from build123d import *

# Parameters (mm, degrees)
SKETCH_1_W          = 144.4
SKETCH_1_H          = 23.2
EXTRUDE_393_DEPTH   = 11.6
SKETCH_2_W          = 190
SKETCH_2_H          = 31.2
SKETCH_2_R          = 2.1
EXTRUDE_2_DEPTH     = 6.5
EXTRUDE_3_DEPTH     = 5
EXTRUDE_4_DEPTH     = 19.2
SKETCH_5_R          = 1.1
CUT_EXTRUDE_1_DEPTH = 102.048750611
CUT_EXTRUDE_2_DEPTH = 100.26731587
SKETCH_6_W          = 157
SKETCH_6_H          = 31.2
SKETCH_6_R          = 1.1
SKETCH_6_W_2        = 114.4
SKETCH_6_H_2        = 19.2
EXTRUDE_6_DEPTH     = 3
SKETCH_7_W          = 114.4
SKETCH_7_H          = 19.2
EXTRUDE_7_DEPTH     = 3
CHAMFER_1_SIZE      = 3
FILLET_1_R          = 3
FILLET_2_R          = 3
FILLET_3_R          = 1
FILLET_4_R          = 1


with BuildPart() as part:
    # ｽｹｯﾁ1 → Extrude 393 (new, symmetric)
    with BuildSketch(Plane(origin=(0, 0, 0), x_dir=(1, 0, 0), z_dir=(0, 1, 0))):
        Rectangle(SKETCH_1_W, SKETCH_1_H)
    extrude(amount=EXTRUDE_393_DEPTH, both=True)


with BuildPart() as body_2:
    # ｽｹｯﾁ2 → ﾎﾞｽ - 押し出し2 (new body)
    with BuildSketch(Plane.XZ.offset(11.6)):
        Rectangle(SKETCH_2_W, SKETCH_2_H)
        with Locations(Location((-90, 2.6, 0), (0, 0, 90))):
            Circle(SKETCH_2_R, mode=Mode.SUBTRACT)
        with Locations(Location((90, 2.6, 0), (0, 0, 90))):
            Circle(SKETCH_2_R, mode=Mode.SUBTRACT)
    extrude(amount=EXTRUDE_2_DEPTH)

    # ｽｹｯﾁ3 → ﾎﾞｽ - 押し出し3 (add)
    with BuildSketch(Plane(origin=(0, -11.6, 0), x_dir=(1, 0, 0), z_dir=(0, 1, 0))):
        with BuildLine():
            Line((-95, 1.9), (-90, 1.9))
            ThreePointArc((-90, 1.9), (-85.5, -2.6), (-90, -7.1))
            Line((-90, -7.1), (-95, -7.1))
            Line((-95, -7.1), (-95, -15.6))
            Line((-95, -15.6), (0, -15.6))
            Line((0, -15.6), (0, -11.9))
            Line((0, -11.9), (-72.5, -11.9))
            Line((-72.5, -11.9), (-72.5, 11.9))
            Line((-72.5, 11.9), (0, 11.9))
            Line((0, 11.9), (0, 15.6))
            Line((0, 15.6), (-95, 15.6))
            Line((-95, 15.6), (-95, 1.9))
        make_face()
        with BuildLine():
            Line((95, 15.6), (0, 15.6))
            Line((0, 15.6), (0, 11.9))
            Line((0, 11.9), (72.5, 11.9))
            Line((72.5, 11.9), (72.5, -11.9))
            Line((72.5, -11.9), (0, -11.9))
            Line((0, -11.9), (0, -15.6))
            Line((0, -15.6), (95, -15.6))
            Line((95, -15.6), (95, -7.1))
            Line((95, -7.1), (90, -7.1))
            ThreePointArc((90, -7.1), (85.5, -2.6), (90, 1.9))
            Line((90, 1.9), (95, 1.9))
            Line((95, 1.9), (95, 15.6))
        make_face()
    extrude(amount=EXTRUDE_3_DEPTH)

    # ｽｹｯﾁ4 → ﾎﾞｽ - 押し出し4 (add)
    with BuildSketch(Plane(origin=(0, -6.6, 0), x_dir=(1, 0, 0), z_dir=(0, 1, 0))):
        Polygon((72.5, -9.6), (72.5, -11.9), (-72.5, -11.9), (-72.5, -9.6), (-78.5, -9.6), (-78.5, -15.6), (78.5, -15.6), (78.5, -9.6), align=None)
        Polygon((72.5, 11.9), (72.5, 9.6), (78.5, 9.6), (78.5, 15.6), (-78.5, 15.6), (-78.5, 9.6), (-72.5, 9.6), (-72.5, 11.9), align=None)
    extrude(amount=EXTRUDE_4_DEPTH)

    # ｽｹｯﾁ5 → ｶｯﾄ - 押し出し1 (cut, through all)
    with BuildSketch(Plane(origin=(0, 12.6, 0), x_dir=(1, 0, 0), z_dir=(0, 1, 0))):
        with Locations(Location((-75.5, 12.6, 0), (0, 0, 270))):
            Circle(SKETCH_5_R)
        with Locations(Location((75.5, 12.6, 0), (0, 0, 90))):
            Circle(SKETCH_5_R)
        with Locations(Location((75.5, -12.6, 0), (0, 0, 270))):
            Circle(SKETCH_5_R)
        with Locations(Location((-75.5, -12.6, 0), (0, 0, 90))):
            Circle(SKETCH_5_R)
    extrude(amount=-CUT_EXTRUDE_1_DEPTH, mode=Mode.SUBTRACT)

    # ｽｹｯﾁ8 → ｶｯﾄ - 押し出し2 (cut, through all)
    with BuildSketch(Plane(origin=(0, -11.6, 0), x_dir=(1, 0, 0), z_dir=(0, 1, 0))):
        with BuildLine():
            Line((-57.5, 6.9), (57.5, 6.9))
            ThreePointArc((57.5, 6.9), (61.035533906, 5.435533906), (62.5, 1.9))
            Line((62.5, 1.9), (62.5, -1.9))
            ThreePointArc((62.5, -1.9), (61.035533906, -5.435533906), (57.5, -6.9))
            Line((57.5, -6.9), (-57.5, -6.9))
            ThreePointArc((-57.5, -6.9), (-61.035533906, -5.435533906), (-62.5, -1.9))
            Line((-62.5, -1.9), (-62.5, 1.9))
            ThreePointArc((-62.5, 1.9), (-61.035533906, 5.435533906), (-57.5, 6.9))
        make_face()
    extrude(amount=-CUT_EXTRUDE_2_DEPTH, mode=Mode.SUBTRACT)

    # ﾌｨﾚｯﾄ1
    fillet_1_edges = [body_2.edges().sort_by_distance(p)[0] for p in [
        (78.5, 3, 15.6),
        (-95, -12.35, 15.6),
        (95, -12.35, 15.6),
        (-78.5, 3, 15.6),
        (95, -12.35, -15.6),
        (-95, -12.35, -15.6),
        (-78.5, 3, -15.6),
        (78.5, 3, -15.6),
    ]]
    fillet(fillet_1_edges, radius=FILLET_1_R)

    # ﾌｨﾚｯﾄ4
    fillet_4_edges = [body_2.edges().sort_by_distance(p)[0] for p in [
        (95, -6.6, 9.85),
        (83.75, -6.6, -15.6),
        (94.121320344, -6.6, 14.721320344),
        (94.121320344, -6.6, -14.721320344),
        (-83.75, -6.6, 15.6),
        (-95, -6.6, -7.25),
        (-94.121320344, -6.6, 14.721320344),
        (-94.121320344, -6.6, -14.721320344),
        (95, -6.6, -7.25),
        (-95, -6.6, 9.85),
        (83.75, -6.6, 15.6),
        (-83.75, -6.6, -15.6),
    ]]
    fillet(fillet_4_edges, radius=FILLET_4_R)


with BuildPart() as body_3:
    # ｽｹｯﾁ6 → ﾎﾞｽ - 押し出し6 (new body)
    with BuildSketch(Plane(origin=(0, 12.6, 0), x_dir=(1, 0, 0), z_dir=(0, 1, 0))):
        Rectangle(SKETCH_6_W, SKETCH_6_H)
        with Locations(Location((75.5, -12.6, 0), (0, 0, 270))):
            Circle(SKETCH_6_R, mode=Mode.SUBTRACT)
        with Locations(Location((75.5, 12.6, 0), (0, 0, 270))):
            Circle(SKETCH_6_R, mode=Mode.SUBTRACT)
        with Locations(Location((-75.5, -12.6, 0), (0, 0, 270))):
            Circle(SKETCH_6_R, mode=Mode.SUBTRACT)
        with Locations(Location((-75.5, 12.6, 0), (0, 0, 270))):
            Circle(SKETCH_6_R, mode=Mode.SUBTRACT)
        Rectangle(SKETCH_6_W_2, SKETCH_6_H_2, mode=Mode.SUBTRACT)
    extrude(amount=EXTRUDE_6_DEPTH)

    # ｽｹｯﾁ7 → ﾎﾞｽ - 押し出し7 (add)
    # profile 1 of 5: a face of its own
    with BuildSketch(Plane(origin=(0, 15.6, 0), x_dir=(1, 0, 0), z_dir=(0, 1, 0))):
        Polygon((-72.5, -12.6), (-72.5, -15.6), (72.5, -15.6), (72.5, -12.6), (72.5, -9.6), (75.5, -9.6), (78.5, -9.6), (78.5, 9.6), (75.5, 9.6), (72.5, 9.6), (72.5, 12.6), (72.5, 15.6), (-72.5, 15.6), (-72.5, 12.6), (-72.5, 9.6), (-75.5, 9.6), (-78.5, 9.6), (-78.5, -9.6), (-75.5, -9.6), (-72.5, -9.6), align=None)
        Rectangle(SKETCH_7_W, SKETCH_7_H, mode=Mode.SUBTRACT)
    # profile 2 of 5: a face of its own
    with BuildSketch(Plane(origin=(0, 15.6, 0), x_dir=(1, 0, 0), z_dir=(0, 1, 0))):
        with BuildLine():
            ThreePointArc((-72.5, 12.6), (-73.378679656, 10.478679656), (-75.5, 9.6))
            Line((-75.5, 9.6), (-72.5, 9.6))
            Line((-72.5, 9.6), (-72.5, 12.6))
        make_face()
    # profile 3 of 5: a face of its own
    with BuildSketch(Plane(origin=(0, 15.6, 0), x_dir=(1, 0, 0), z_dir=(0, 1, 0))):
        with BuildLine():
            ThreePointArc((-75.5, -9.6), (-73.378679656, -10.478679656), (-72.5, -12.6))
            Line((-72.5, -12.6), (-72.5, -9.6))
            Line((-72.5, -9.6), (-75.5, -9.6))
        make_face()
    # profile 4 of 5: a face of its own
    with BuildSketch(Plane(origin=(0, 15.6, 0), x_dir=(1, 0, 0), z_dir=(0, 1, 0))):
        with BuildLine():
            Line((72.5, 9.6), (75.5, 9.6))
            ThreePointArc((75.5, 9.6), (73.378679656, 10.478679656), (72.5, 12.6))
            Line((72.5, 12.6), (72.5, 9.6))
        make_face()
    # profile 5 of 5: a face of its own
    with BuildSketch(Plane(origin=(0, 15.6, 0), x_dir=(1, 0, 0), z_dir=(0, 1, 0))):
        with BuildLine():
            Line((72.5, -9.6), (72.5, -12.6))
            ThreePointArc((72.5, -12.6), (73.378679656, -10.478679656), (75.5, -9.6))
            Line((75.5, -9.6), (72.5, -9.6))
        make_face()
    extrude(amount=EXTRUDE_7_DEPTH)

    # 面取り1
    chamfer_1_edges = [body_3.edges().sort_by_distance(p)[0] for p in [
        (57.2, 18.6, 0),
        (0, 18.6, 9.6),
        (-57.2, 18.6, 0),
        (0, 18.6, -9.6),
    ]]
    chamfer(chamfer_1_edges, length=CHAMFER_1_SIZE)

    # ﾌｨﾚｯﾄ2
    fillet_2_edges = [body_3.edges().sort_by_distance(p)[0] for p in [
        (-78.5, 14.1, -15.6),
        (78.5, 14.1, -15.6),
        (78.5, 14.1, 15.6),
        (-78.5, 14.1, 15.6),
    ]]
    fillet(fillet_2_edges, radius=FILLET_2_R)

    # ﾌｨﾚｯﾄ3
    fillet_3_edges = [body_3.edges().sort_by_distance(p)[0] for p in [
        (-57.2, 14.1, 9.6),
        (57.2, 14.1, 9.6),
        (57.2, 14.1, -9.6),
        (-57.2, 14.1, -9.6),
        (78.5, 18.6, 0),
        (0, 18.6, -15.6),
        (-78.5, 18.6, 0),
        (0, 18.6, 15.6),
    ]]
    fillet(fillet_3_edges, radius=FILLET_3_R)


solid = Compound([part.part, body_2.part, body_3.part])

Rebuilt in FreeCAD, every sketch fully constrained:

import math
import FreeCAD as App
import Part
import Sketcher


def edges_at(feature, points):
    """Names of the edges that pass closest to the given points."""
    edges = feature.Shape.Edges
    near = lambda p: min(range(len(edges)), key=lambda i: edges[i].distToShape(Part.Vertex(*p))[0])
    return sorted({f"Edge{near(p) + 1}" for p in points})

doc = App.newDocument("Part")
body = doc.addObject("PartDesign::Body", "Body")

# Sketch on XZ plane
sketch1 = doc.addObject("Sketcher::SketchObject", "Sketch")
body.addObject(sketch1)
sketch1.AttachmentSupport = (doc.XZ_Plane, [""])
sketch1.MapMode = "FlatFace"
sketch1.addGeometry([
    Part.LineSegment(App.Vector(-72, -12, 0), App.Vector(-72, 12, 0)),
    Part.LineSegment(App.Vector(-72, 12, 0), App.Vector(72, 12, 0)),
    Part.LineSegment(App.Vector(72, 12, 0), App.Vector(72, -12, 0)),
    Part.LineSegment(App.Vector(72, -12, 0), App.Vector(-72, -12, 0)),
], False)
sketch1.addConstraint([
    Sketcher.Constraint("Coincident", 0, 2, 1, 1),
    Sketcher.Constraint("Coincident", 1, 2, 2, 1),
    Sketcher.Constraint("Coincident", 2, 2, 3, 1),
    Sketcher.Constraint("Coincident", 3, 2, 0, 1),
    Sketcher.Constraint("Vertical", 0),
    Sketcher.Constraint("Horizontal", 1),
    Sketcher.Constraint("Vertical", 2),
    Sketcher.Constraint("Horizontal", 3),
    Sketcher.Constraint("Symmetric", 0, 2, 2, 2, -1, 1),
    Sketcher.Constraint("DistanceX", 1, 1, 1, 2, 144.4),
    Sketcher.Constraint("DistanceY", 0, 1, 0, 2, 23.2),
])
pad1 = doc.addObject("PartDesign::Pad", "Pad")
body.addObject(pad1)
pad1.Profile = sketch1
pad1.Length = 23.2
pad1.Midplane = True
body2 = doc.addObject("PartDesign::Body", "Body001")

# Sketch on XZ plane
sketch2 = doc.addObject("Sketcher::SketchObject", "Sketch001")
body2.addObject(sketch2)
sketch2.AttachmentSupport = (doc.getObject("XZ_Plane001"), [""])
sketch2.MapMode = "FlatFace"
sketch2.AttachmentOffset = App.Placement(App.Vector(0, 0, 11.6), App.Rotation())
sketch2.addGeometry([
    Part.LineSegment(App.Vector(-95, 15.6, 0), App.Vector(-95, -15.6, 0)),  # 0
    Part.LineSegment(App.Vector(-95, -15.6, 0), App.Vector(95, -15.6, 0)),  # 1
    Part.LineSegment(App.Vector(95, -15.6, 0), App.Vector(95, 15.6, 0)),  # 2
    Part.LineSegment(App.Vector(95, 15.6, 0), App.Vector(-95, 15.6, 0)),  # 3
    Part.Circle(App.Vector(-90, 2.6, 0), App.Vector(0, 0, 1), 2.1),  # 4
    Part.Circle(App.Vector(90, 2.6, 0), App.Vector(0, 0, 1), 2.1),  # 5
], False)
sketch2.addConstraint([
    Sketcher.Constraint("Coincident", 0, 2, 1, 1),
    Sketcher.Constraint("Coincident", 1, 2, 2, 1),
    Sketcher.Constraint("Coincident", 2, 2, 3, 1),
    Sketcher.Constraint("Coincident", 3, 2, 0, 1),
    Sketcher.Constraint("Vertical", 0),
    Sketcher.Constraint("Horizontal", 1),
    Sketcher.Constraint("Vertical", 2),
    Sketcher.Constraint("Horizontal", 3),
    Sketcher.Constraint("Equal", 4, 5),
    Sketcher.Constraint("Symmetric", 0, 2, 2, 2, -1, 1),
    Sketcher.Constraint("Symmetric", 4, 3, 5, 3, -2),
    Sketcher.Constraint("Diameter", 4, 4.2),
    Sketcher.Constraint("DistanceX", 1, 1, 1, 2, 190.0),
    Sketcher.Constraint("DistanceY", 0, 2, 0, 1, 31.2),
    Sketcher.Constraint("DistanceX", 4, 3, -1, 1, 90.0),
    Sketcher.Constraint("DistanceY", 5, 3, 2, 2, 13.0),
])
pad2 = doc.addObject("PartDesign::Pad", "Pad001")
body2.addObject(pad2)
pad2.Profile = sketch2
pad2.Length = 6.5

# Sketch on XZ plane
sketch3 = doc.addObject("Sketcher::SketchObject", "Sketch002")
body2.addObject(sketch3)
sketch3.AttachmentSupport = (doc.getObject("XZ_Plane001"), [""])
sketch3.MapMode = "FlatFace"
sketch3.AttachmentOffset = App.Placement(App.Vector(0, 0, 11.6), App.Rotation())
sketch3.addGeometry([
    Part.LineSegment(App.Vector(-95, -1.9, 0), App.Vector(-90, -1.9, 0)),  # 0
    Part.ArcOfCircle(Part.Circle(App.Vector(-90, 2.6, 0), App.Vector(0, 0, 1), 4.5), math.radians(-90), math.radians(90)),  # 1
    Part.LineSegment(App.Vector(-90, 7.1, 0), App.Vector(-95, 7.1, 0)),  # 2
    Part.LineSegment(App.Vector(-95, 7.1, 0), App.Vector(-95, 15.6, 0)),  # 3
    Part.LineSegment(App.Vector(-95, 15.6, 0), App.Vector(95, 15.6, 0)),  # 4
    Part.LineSegment(App.Vector(95, 15.6, 0), App.Vector(95, 7.1, 0)),  # 5
    Part.LineSegment(App.Vector(95, 7.1, 0), App.Vector(90, 7.1, 0)),  # 6
    Part.ArcOfCircle(Part.Circle(App.Vector(90, 2.6, 0), App.Vector(0, 0, 1), 4.5), math.radians(90), math.radians(270)),  # 7
    Part.LineSegment(App.Vector(90, -1.9, 0), App.Vector(95, -1.9, 0)),  # 8
    Part.LineSegment(App.Vector(95, -1.9, 0), App.Vector(95, -15.6, 0)),  # 9
    Part.LineSegment(App.Vector(95, -15.6, 0), App.Vector(-95, -15.6, 0)),  # 10
    Part.LineSegment(App.Vector(-95, -15.6, 0), App.Vector(-95, -1.9, 0)),  # 11
    Part.LineSegment(App.Vector(-72.5, 11.9, 0), App.Vector(-72.5, -11.9, 0)),  # 12
    Part.LineSegment(App.Vector(-72.5, -11.9, 0), App.Vector(72.5, -11.9, 0)),  # 13
    Part.LineSegment(App.Vector(72.5, -11.9, 0), App.Vector(72.5, 11.9, 0)),  # 14
    Part.LineSegment(App.Vector(72.5, 11.9, 0), App.Vector(-72.5, 11.9, 0)),  # 15
], False)
sketch3.addConstraint([
    Sketcher.Constraint("Tangent", 0, 2, 1, 1),
    Sketcher.Constraint("Tangent", 1, 2, 2, 1),
    Sketcher.Constraint("Coincident", 2, 2, 3, 1),
    Sketcher.Constraint("Coincident", 3, 2, 4, 1),
    Sketcher.Constraint("Coincident", 4, 2, 5, 1),
    Sketcher.Constraint("Coincident", 5, 2, 6, 1),
    Sketcher.Constraint("Tangent", 6, 2, 7, 1),
    Sketcher.Constraint("Tangent", 7, 2, 8, 1),
    Sketcher.Constraint("Coincident", 8, 2, 9, 1),
    Sketcher.Constraint("Coincident", 9, 2, 10, 1),
    Sketcher.Constraint("Coincident", 10, 2, 11, 1),
    Sketcher.Constraint("Coincident", 11, 2, 0, 1),
    Sketcher.Constraint("Coincident", 12, 2, 13, 1),
    Sketcher.Constraint("Coincident", 13, 2, 14, 1),
    Sketcher.Constraint("Coincident", 14, 2, 15, 1),
    Sketcher.Constraint("Coincident", 15, 2, 12, 1),
    Sketcher.Constraint("Horizontal", 0),
    Sketcher.Constraint("Horizontal", 2),
    Sketcher.Constraint("Vertical", 3),
    Sketcher.Constraint("Horizontal", 4),
    Sketcher.Constraint("Vertical", 5),
    Sketcher.Constraint("Horizontal", 6),
    Sketcher.Constraint("Horizontal", 8),
    Sketcher.Constraint("Vertical", 9),
    Sketcher.Constraint("Horizontal", 10),
    Sketcher.Constraint("Vertical", 11),
    Sketcher.Constraint("Vertical", 12),
    Sketcher.Constraint("Horizontal", 13),
    Sketcher.Constraint("Vertical", 14),
    Sketcher.Constraint("Horizontal", 15),
    Sketcher.Constraint("Equal", 1, 7),
    Sketcher.Constraint("Symmetric", 3, 2, 9, 2, -1, 1),
    Sketcher.Constraint("Symmetric", 12, 2, 14, 2, -1, 1),
    Sketcher.Constraint("Symmetric", 1, 3, 7, 3, -2),
    Sketcher.Constraint("Vertical", 5, 2, 8, 2),
    Sketcher.Constraint("Vertical", 3, 2, 10, 2),
    Sketcher.Constraint("Radius", 1, 4.5),
    Sketcher.Constraint("DistanceX", 0, 1, 0, 2, 5.0),
    Sketcher.Constraint("DistanceX", 4, 1, 4, 2, 190.0),
    Sketcher.Constraint("DistanceX", 13, 1, 13, 2, 145.0),
    Sketcher.Constraint("DistanceY", 3, 1, 3, 2, 8.5),
    Sketcher.Constraint("DistanceY", 9, 2, 9, 1, 13.7),
    Sketcher.Constraint("DistanceY", 12, 2, 12, 1, 23.8),
])
pad3 = doc.addObject("PartDesign::Pad", "Pad002")
body2.addObject(pad3)
pad3.Profile = sketch3
pad3.Length = 5
pad3.Reversed = True

# Sketch on XZ plane
sketch4 = doc.addObject("Sketcher::SketchObject", "Sketch003")
body2.addObject(sketch4)
sketch4.AttachmentSupport = (doc.getObject("XZ_Plane001"), [""])
sketch4.MapMode = "FlatFace"
sketch4.AttachmentOffset = App.Placement(App.Vector(0, 0, 6.6), App.Rotation())
sketch4.addGeometry([
    Part.LineSegment(App.Vector(72.5, 9.6, 0), App.Vector(72.5, 11.9, 0)),  # 0
    Part.LineSegment(App.Vector(72.5, 11.9, 0), App.Vector(-72.5, 11.9, 0)),  # 1
    Part.LineSegment(App.Vector(-72.5, 11.9, 0), App.Vector(-72.5, 9.6, 0)),  # 2
    Part.LineSegment(App.Vector(-72.5, 9.6, 0), App.Vector(-78.5, 9.6, 0)),  # 3
    Part.LineSegment(App.Vector(-78.5, 9.6, 0), App.Vector(-78.5, 15.6, 0)),  # 4
    Part.LineSegment(App.Vector(-78.5, 15.6, 0), App.Vector(78.5, 15.6, 0)),  # 5
    Part.LineSegment(App.Vector(78.5, 15.6, 0), App.Vector(78.5, 9.6, 0)),  # 6
    Part.LineSegment(App.Vector(78.5, 9.6, 0), App.Vector(72.5, 9.6, 0)),  # 7
    Part.LineSegment(App.Vector(72.5, -11.9, 0), App.Vector(72.5, -9.6, 0)),  # 8
    Part.LineSegment(App.Vector(72.5, -9.6, 0), App.Vector(78.5, -9.6, 0)),  # 9
    Part.LineSegment(App.Vector(78.5, -9.6, 0), App.Vector(78.5, -15.6, 0)),  # 10
    Part.LineSegment(App.Vector(78.5, -15.6, 0), App.Vector(-78.5, -15.6, 0)),  # 11
    Part.LineSegment(App.Vector(-78.5, -15.6, 0), App.Vector(-78.5, -9.6, 0)),  # 12
    Part.LineSegment(App.Vector(-78.5, -9.6, 0), App.Vector(-72.5, -9.6, 0)),  # 13
    Part.LineSegment(App.Vector(-72.5, -9.6, 0), App.Vector(-72.5, -11.9, 0)),  # 14
    Part.LineSegment(App.Vector(-72.5, -11.9, 0), App.Vector(72.5, -11.9, 0)),  # 15
], False)
sketch4.addConstraint([
    Sketcher.Constraint("Coincident", 0, 2, 1, 1),
    Sketcher.Constraint("Coincident", 1, 2, 2, 1),
    Sketcher.Constraint("Coincident", 2, 2, 3, 1),
    Sketcher.Constraint("Coincident", 3, 2, 4, 1),
    Sketcher.Constraint("Coincident", 4, 2, 5, 1),
    Sketcher.Constraint("Coincident", 5, 2, 6, 1),
    Sketcher.Constraint("Coincident", 6, 2, 7, 1),
    Sketcher.Constraint("Coincident", 7, 2, 0, 1),
    Sketcher.Constraint("Coincident", 8, 2, 9, 1),
    Sketcher.Constraint("Coincident", 9, 2, 10, 1),
    Sketcher.Constraint("Coincident", 10, 2, 11, 1),
    Sketcher.Constraint("Coincident", 11, 2, 12, 1),
    Sketcher.Constraint("Coincident", 12, 2, 13, 1),
    Sketcher.Constraint("Coincident", 13, 2, 14, 1),
    Sketcher.Constraint("Coincident", 14, 2, 15, 1),
    Sketcher.Constraint("Coincident", 15, 2, 8, 1),
    Sketcher.Constraint("Vertical", 0),
    Sketcher.Constraint("Horizontal", 1),
    Sketcher.Constraint("Vertical", 2),
    Sketcher.Constraint("Horizontal", 3),
    Sketcher.Constraint("Vertical", 4),
    Sketcher.Constraint("Horizontal", 5),
    Sketcher.Constraint("Vertical", 6),
    Sketcher.Constraint("Horizontal", 7),
    Sketcher.Constraint("Vertical", 8),
    Sketcher.Constraint("Horizontal", 9),
    Sketcher.Constraint("Vertical", 10),
    Sketcher.Constraint("Horizontal", 11),
    Sketcher.Constraint("Vertical", 12),
    Sketcher.Constraint("Horizontal", 13),
    Sketcher.Constraint("Vertical", 14),
    Sketcher.Constraint("Horizontal", 15),
    Sketcher.Constraint("Symmetric", 2, 2, 8, 2, -1, 1),
    Sketcher.Constraint("Symmetric", 4, 2, 10, 2, -1, 1),
    Sketcher.Constraint("Symmetric", 6, 2, 12, 2, -1, 1),
    Sketcher.Constraint("Symmetric", 0, 2, 14, 2, -1, 1),
    Sketcher.Constraint("Symmetric", 3, 2, 6, 2, -2),
    Sketcher.Constraint("Vertical", 7, 2, 8, 2),
    Sketcher.Constraint("Equal", 13, 4),
    Sketcher.Constraint("DistanceX", 1, 2, 1, 1, 145.0),
    Sketcher.Constraint("DistanceX", 3, 2, 3, 1, 6.0),
    Sketcher.Constraint("DistanceY", 0, 1, 0, 2, 2.3),
    Sketcher.Constraint("DistanceY", -1, 1, 0, 2, 11.9),
])
pad4 = doc.addObject("PartDesign::Pad", "Pad003")
body2.addObject(pad4)
pad4.Profile = sketch4
pad4.Length = 19.2
pad4.Reversed = True

# Sketch on XZ plane
sketch5 = doc.addObject("Sketcher::SketchObject", "Sketch004")
body2.addObject(sketch5)
sketch5.AttachmentSupport = (doc.getObject("XZ_Plane001"), [""])
sketch5.MapMode = "FlatFace"
sketch5.AttachmentOffset = App.Placement(App.Vector(0, 0, -12.6), App.Rotation())
sketch5.addGeometry([
    Part.Circle(App.Vector(-75.5, -12.6, 0), App.Vector(0, 0, 1), 1.1),
    Part.Circle(App.Vector(75.5, -12.6, 0), App.Vector(0, 0, 1), 1.1),
    Part.Circle(App.Vector(75.5, 12.6, 0), App.Vector(0, 0, 1), 1.1),
    Part.Circle(App.Vector(-75.5, 12.6, 0), App.Vector(0, 0, 1), 1.1),
], False)
sketch5.addConstraint([
    Sketcher.Constraint("Equal", 0, 1),
    Sketcher.Constraint("Equal", 1, 2),
    Sketcher.Constraint("Equal", 2, 3),
    Sketcher.Constraint("Symmetric", 0, 3, 2, 3, -1, 1),
    Sketcher.Constraint("Symmetric", 1, 3, 3, 3, -1, 1),
    Sketcher.Constraint("Symmetric", 0, 3, 1, 3, -2),
    Sketcher.Constraint("Diameter", 0, 2.2),
    Sketcher.Constraint("DistanceX", 0, 3, 1, 3, 151.0),
    Sketcher.Constraint("DistanceY", 0, 3, -1, 1, 12.6),
])
pocket1 = doc.addObject("PartDesign::Pocket", "Pocket")
body2.addObject(pocket1)
pocket1.Profile = sketch5
pocket1.Type = "ThroughAll"
pocket1.Reversed = True

# Sketch on XZ plane
sketch6 = doc.addObject("Sketcher::SketchObject", "Sketch005")
body2.addObject(sketch6)
sketch6.AttachmentSupport = (doc.getObject("XZ_Plane001"), [""])
sketch6.MapMode = "FlatFace"
sketch6.AttachmentOffset = App.Placement(App.Vector(0, 0, 11.6), App.Rotation())
sketch6.addGeometry([
    Part.LineSegment(App.Vector(57.5, -6.9, 0), App.Vector(-57.5, -6.9, 0)),  # 0
    Part.ArcOfCircle(Part.Circle(App.Vector(-57.5, -1.9, 0), App.Vector(0, 0, 1), 5), math.radians(180), math.radians(270)),  # 1
    Part.LineSegment(App.Vector(-62.5, -1.9, 0), App.Vector(-62.5, 1.9, 0)),  # 2
    Part.ArcOfCircle(Part.Circle(App.Vector(-57.5, 1.9, 0), App.Vector(0, 0, 1), 5), math.radians(90), math.radians(180)),  # 3
    Part.LineSegment(App.Vector(-57.5, 6.9, 0), App.Vector(57.5, 6.9, 0)),  # 4
    Part.ArcOfCircle(Part.Circle(App.Vector(57.5, 1.9, 0), App.Vector(0, 0, 1), 5), math.radians(0), math.radians(90)),  # 5
    Part.LineSegment(App.Vector(62.5, 1.9, 0), App.Vector(62.5, -1.9, 0)),  # 6
    Part.ArcOfCircle(Part.Circle(App.Vector(57.5, -1.9, 0), App.Vector(0, 0, 1), 5), math.radians(-90), math.radians(0)),  # 7
], False)
sketch6.addConstraint([
    Sketcher.Constraint("Tangent", 0, 2, 1, 2),
    Sketcher.Constraint("Tangent", 1, 1, 2, 1),
    Sketcher.Constraint("Tangent", 2, 2, 3, 2),
    Sketcher.Constraint("Tangent", 3, 1, 4, 1),
    Sketcher.Constraint("Tangent", 4, 2, 5, 2),
    Sketcher.Constraint("Tangent", 5, 1, 6, 1),
    Sketcher.Constraint("Tangent", 6, 2, 7, 2),
    Sketcher.Constraint("Tangent", 7, 1, 0, 1),
    Sketcher.Constraint("Horizontal", 0),
    Sketcher.Constraint("Vertical", 2),
    Sketcher.Constraint("Horizontal", 4),
    Sketcher.Constraint("Vertical", 6),
    Sketcher.Constraint("Equal", 1, 3),
    Sketcher.Constraint("Equal", 3, 5),
    Sketcher.Constraint("Equal", 5, 7),
    Sketcher.Constraint("Symmetric", 1, 3, 5, 3, -1, 1),
    Sketcher.Constraint("Radius", 1, 5.0),
    Sketcher.Constraint("DistanceX", 0, 2, 0, 1, 115.0),
    Sketcher.Constraint("DistanceY", 2, 1, 2, 2, 3.8),
])
pocket2 = doc.addObject("PartDesign::Pocket", "Pocket001")
body2.addObject(pocket2)
pocket2.Profile = sketch6
pocket2.Type = "ThroughAll"
pocket2.Reversed = True
doc.recompute()

fillet = doc.addObject("PartDesign::Fillet", "Fillet")
body2.addObject(fillet)
fillet.Base = (pocket2, edges_at(pocket2, [
    (78.5, 3, 15.6),
    (-95, -12.35, 15.6),
    (95, -12.35, 15.6),
    (-78.5, 3, 15.6),
    (95, -12.35, -15.6),
    (-95, -12.35, -15.6),
    (-78.5, 3, -15.6),
    (78.5, 3, -15.6),
]))
fillet.Radius = 3
doc.recompute()

fillet2 = doc.addObject("PartDesign::Fillet", "Fillet001")
body2.addObject(fillet2)
fillet2.Base = (fillet, edges_at(fillet, [
    (95, -6.6, 9.85),
    (83.75, -6.6, -15.6),
    (94.121, -6.6, 14.721),
    (94.121, -6.6, -14.721),
    (-83.75, -6.6, 15.6),
    (-95, -6.6, -7.25),
    (-94.121, -6.6, 14.721),
    (-94.121, -6.6, -14.721),
    (95, -6.6, -7.25),
    (-95, -6.6, 9.85),
    (83.75, -6.6, 15.6),
    (-83.75, -6.6, -15.6),
]))
fillet2.Radius = 1
body3 = doc.addObject("PartDesign::Body", "Body002")

# Sketch on XZ plane
sketch7 = doc.addObject("Sketcher::SketchObject", "Sketch006")
body3.addObject(sketch7)
sketch7.AttachmentSupport = (doc.getObject("XZ_Plane002"), [""])
sketch7.MapMode = "FlatFace"
sketch7.AttachmentOffset = App.Placement(App.Vector(0, 0, -12.6), App.Rotation())
sketch7.addGeometry([
    Part.LineSegment(App.Vector(-78.5, -15.6, 0), App.Vector(-78.5, 15.6, 0)),  # 0
    Part.LineSegment(App.Vector(-78.5, 15.6, 0), App.Vector(78.5, 15.6, 0)),  # 1
    Part.LineSegment(App.Vector(78.5, 15.6, 0), App.Vector(78.5, -15.6, 0)),  # 2
    Part.LineSegment(App.Vector(78.5, -15.6, 0), App.Vector(-78.5, -15.6, 0)),  # 3
    Part.Circle(App.Vector(-75.5, 12.6, 0), App.Vector(0, 0, 1), 1.1),  # 4
    Part.Circle(App.Vector(75.5, 12.6, 0), App.Vector(0, 0, 1), 1.1),  # 5
    Part.Circle(App.Vector(-75.5, -12.6, 0), App.Vector(0, 0, 1), 1.1),  # 6
    Part.LineSegment(App.Vector(57.2, 9.6, 0), App.Vector(-57.2, 9.6, 0)),  # 7
    Part.LineSegment(App.Vector(-57.2, 9.6, 0), App.Vector(-57.2, -9.6, 0)),  # 8
    Part.LineSegment(App.Vector(-57.2, -9.6, 0), App.Vector(57.2, -9.6, 0)),  # 9
    Part.LineSegment(App.Vector(57.2, -9.6, 0), App.Vector(57.2, 9.6, 0)),  # 10
    Part.Circle(App.Vector(75.5, -12.6, 0), App.Vector(0, 0, 1), 1.1),  # 11
], False)
sketch7.addConstraint([
    Sketcher.Constraint("Coincident", 0, 2, 1, 1),
    Sketcher.Constraint("Coincident", 1, 2, 2, 1),
    Sketcher.Constraint("Coincident", 2, 2, 3, 1),
    Sketcher.Constraint("Coincident", 3, 2, 0, 1),
    Sketcher.Constraint("Coincident", 7, 2, 8, 1),
    Sketcher.Constraint("Coincident", 8, 2, 9, 1),
    Sketcher.Constraint("Coincident", 9, 2, 10, 1),
    Sketcher.Constraint("Coincident", 10, 2, 7, 1),
    Sketcher.Constraint("Vertical", 0),
    Sketcher.Constraint("Horizontal", 1),
    Sketcher.Constraint("Vertical", 2),
    Sketcher.Constraint("Horizontal", 3),
    Sketcher.Constraint("Horizontal", 7),
    Sketcher.Constraint("Vertical", 8),
    Sketcher.Constraint("Horizontal", 9),
    Sketcher.Constraint("Vertical", 10),
    Sketcher.Constraint("Equal", 4, 5),
    Sketcher.Constraint("Equal", 5, 6),
    Sketcher.Constraint("Equal", 6, 11),
    Sketcher.Constraint("Symmetric", 5, 3, 6, 3, -1, 1),
    Sketcher.Constraint("Symmetric", 4, 3, 11, 3, -1, 1),
    Sketcher.Constraint("Symmetric", 0, 2, 2, 2, -1, 1),
    Sketcher.Constraint("Symmetric", 7, 2, 9, 2, -1, 1),
    Sketcher.Constraint("Symmetric", 4, 3, 5, 3, -2),
    Sketcher.Constraint("Diameter", 4, 2.2),
    Sketcher.Constraint("DistanceX", 1, 1, 1, 2, 157.0),
    Sketcher.Constraint("DistanceX", 7, 2, 7, 1, 114.4),
    Sketcher.Constraint("DistanceY", 0, 1, 0, 2, 31.2),
    Sketcher.Constraint("DistanceY", 8, 2, 8, 1, 19.2),
    Sketcher.Constraint("DistanceX", 4, 3, 5, 3, 151.0),
    Sketcher.Constraint("DistanceY", 4, 3, 0, 2, 3.0),
])
pad5 = doc.addObject("PartDesign::Pad", "Pad004")
body3.addObject(pad5)
pad5.Profile = sketch7
pad5.Length = 3
pad5.Reversed = True

# Sketch on XZ plane
sketch8 = doc.addObject("Sketcher::SketchObject", "Sketch007")
body3.addObject(sketch8)
sketch8.AttachmentSupport = (doc.getObject("XZ_Plane002"), [""])
sketch8.MapMode = "FlatFace"
sketch8.AttachmentOffset = App.Placement(App.Vector(0, 0, -15.6), App.Rotation())
sketch8.addGeometry([
    Part.LineSegment(App.Vector(-72.5, 15.6, 0), App.Vector(72.5, 15.6, 0)),  # 0
    Part.LineSegment(App.Vector(72.5, 15.6, 0), App.Vector(72.5, 12.6, 0)),  # 1
    Part.ArcOfCircle(Part.Circle(App.Vector(75.5, 12.6, 0), App.Vector(0, 0, 1), 3), math.radians(180), math.radians(270)),  # 2
    Part.LineSegment(App.Vector(75.5, 9.6, 0), App.Vector(78.5, 9.6, 0)),  # 3
    Part.LineSegment(App.Vector(78.5, 9.6, 0), App.Vector(78.5, -9.6, 0)),  # 4
    Part.LineSegment(App.Vector(78.5, -9.6, 0), App.Vector(75.5, -9.6, 0)),  # 5
    Part.ArcOfCircle(Part.Circle(App.Vector(75.5, -12.6, 0), App.Vector(0, 0, 1), 3), math.radians(90), math.radians(180)),  # 6
    Part.LineSegment(App.Vector(72.5, -12.6, 0), App.Vector(72.5, -15.6, 0)),  # 7
    Part.LineSegment(App.Vector(72.5, -15.6, 0), App.Vector(-72.5, -15.6, 0)),  # 8
    Part.LineSegment(App.Vector(-72.5, -15.6, 0), App.Vector(-72.5, -12.6, 0)),  # 9
    Part.ArcOfCircle(Part.Circle(App.Vector(-75.5, -12.6, 0), App.Vector(0, 0, 1), 3), math.radians(0), math.radians(90)),  # 10
    Part.LineSegment(App.Vector(-75.5, -9.6, 0), App.Vector(-78.5, -9.6, 0)),  # 11
    Part.LineSegment(App.Vector(-78.5, -9.6, 0), App.Vector(-78.5, 9.6, 0)),  # 12
    Part.LineSegment(App.Vector(-78.5, 9.6, 0), App.Vector(-75.5, 9.6, 0)),  # 13
    Part.ArcOfCircle(Part.Circle(App.Vector(-75.5, 12.6, 0), App.Vector(0, 0, 1), 3), math.radians(-90), math.radians(0)),  # 14
    Part.LineSegment(App.Vector(-72.5, 12.6, 0), App.Vector(-72.5, 15.6, 0)),  # 15
    Part.LineSegment(App.Vector(57.2, 9.6, 0), App.Vector(-57.2, 9.6, 0)),  # 16
    Part.LineSegment(App.Vector(-57.2, 9.6, 0), App.Vector(-57.2, -9.6, 0)),  # 17
    Part.LineSegment(App.Vector(-57.2, -9.6, 0), App.Vector(57.2, -9.6, 0)),  # 18
    Part.LineSegment(App.Vector(57.2, -9.6, 0), App.Vector(57.2, 9.6, 0)),  # 19
], False)
sketch8.addConstraint([
    Sketcher.Constraint("Coincident", 0, 2, 1, 1),
    Sketcher.Constraint("Tangent", 1, 2, 2, 1),
    Sketcher.Constraint("Tangent", 2, 2, 3, 1),
    Sketcher.Constraint("Coincident", 3, 2, 4, 1),
    Sketcher.Constraint("Coincident", 4, 2, 5, 1),
    Sketcher.Constraint("Tangent", 5, 2, 6, 1),
    Sketcher.Constraint("Tangent", 6, 2, 7, 1),
    Sketcher.Constraint("Coincident", 7, 2, 8, 1),
    Sketcher.Constraint("Coincident", 8, 2, 9, 1),
    Sketcher.Constraint("Tangent", 9, 2, 10, 1),
    Sketcher.Constraint("Tangent", 10, 2, 11, 1),
    Sketcher.Constraint("Coincident", 11, 2, 12, 1),
    Sketcher.Constraint("Coincident", 12, 2, 13, 1),
    Sketcher.Constraint("Tangent", 13, 2, 14, 1),
    Sketcher.Constraint("Tangent", 14, 2, 15, 1),
    Sketcher.Constraint("Coincident", 15, 2, 0, 1),
    Sketcher.Constraint("Coincident", 16, 2, 17, 1),
    Sketcher.Constraint("Coincident", 17, 2, 18, 1),
    Sketcher.Constraint("Coincident", 18, 2, 19, 1),
    Sketcher.Constraint("Coincident", 19, 2, 16, 1),
    Sketcher.Constraint("Horizontal", 0),
    Sketcher.Constraint("Vertical", 1),
    Sketcher.Constraint("Horizontal", 3),
    Sketcher.Constraint("Vertical", 4),
    Sketcher.Constraint("Horizontal", 5),
    Sketcher.Constraint("Vertical", 7),
    Sketcher.Constraint("Horizontal", 8),
    Sketcher.Constraint("Vertical", 9),
    Sketcher.Constraint("Horizontal", 11),
    Sketcher.Constraint("Vertical", 12),
    Sketcher.Constraint("Horizontal", 13),
    Sketcher.Constraint("Vertical", 15),
    Sketcher.Constraint("Horizontal", 16),
    Sketcher.Constraint("Vertical", 17),
    Sketcher.Constraint("Horizontal", 18),
    Sketcher.Constraint("Vertical", 19),
    Sketcher.Constraint("Equal", 2, 6),
    Sketcher.Constraint("Equal", 6, 10),
    Sketcher.Constraint("Equal", 10, 14),
    Sketcher.Constraint("Symmetric", 2, 3, 10, 3, -1, 1),
    Sketcher.Constraint("Symmetric", 6, 3, 14, 3, -1, 1),
    Sketcher.Constraint("Symmetric", 16, 2, 18, 2, -1, 1),
    Sketcher.Constraint("Symmetric", 6, 3, 10, 3, -2),
    Sketcher.Constraint("Horizontal", 13, 2, 16, 2),
    Sketcher.Constraint("Equal", 5, 11),
    Sketcher.Constraint("Equal", 13, 1),
    Sketcher.Constraint("Equal", 1, 7),
    Sketcher.Constraint("Radius", 2, 3.0),
    Sketcher.Constraint("DistanceX", 0, 1, 0, 2, 145.0),
    Sketcher.Constraint("DistanceX", 3, 1, 3, 2, 3.0),
    Sketcher.Constraint("DistanceX", 16, 2, 16, 1, 114.4),
    Sketcher.Constraint("DistanceY", 4, 2, 4, 1, 19.2),
])
pad6 = doc.addObject("PartDesign::Pad", "Pad005")
body3.addObject(pad6)
pad6.Profile = sketch8
pad6.Length = 3
pad6.Reversed = True
doc.recompute()

chamfer = doc.addObject("PartDesign::Chamfer", "Chamfer")
body3.addObject(chamfer)
chamfer.Base = (pad6, edges_at(pad6, [
    (57.2, 18.6, 0),
    (0, 18.6, 9.6),
    (-57.2, 18.6, 0),
    (0, 18.6, -9.6),
]))
chamfer.Size = 3
doc.recompute()

fillet3 = doc.addObject("PartDesign::Fillet", "Fillet002")
body3.addObject(fillet3)
fillet3.Base = (chamfer, edges_at(chamfer, [
    (-78.5, 14.1, -15.6),
    (78.5, 14.1, -15.6),
    (78.5, 14.1, 15.6),
    (-78.5, 14.1, 15.6),
]))
fillet3.Radius = 3
doc.recompute()

fillet4 = doc.addObject("PartDesign::Fillet", "Fillet003")
body3.addObject(fillet4)
fillet4.Base = (fillet3, edges_at(fillet3, [
    (-57.2, 14.1, 9.6),
    (57.2, 14.1, 9.6),
    (57.2, 14.1, -9.6),
    (-57.2, 14.1, -9.6),
    (78.5, 18.6, 0),
    (0, 18.6, -15.6),
    (-78.5, 18.6, 0),
    (0, 18.6, 15.6),
]))
fillet4.Radius = 1

doc.recompute()
